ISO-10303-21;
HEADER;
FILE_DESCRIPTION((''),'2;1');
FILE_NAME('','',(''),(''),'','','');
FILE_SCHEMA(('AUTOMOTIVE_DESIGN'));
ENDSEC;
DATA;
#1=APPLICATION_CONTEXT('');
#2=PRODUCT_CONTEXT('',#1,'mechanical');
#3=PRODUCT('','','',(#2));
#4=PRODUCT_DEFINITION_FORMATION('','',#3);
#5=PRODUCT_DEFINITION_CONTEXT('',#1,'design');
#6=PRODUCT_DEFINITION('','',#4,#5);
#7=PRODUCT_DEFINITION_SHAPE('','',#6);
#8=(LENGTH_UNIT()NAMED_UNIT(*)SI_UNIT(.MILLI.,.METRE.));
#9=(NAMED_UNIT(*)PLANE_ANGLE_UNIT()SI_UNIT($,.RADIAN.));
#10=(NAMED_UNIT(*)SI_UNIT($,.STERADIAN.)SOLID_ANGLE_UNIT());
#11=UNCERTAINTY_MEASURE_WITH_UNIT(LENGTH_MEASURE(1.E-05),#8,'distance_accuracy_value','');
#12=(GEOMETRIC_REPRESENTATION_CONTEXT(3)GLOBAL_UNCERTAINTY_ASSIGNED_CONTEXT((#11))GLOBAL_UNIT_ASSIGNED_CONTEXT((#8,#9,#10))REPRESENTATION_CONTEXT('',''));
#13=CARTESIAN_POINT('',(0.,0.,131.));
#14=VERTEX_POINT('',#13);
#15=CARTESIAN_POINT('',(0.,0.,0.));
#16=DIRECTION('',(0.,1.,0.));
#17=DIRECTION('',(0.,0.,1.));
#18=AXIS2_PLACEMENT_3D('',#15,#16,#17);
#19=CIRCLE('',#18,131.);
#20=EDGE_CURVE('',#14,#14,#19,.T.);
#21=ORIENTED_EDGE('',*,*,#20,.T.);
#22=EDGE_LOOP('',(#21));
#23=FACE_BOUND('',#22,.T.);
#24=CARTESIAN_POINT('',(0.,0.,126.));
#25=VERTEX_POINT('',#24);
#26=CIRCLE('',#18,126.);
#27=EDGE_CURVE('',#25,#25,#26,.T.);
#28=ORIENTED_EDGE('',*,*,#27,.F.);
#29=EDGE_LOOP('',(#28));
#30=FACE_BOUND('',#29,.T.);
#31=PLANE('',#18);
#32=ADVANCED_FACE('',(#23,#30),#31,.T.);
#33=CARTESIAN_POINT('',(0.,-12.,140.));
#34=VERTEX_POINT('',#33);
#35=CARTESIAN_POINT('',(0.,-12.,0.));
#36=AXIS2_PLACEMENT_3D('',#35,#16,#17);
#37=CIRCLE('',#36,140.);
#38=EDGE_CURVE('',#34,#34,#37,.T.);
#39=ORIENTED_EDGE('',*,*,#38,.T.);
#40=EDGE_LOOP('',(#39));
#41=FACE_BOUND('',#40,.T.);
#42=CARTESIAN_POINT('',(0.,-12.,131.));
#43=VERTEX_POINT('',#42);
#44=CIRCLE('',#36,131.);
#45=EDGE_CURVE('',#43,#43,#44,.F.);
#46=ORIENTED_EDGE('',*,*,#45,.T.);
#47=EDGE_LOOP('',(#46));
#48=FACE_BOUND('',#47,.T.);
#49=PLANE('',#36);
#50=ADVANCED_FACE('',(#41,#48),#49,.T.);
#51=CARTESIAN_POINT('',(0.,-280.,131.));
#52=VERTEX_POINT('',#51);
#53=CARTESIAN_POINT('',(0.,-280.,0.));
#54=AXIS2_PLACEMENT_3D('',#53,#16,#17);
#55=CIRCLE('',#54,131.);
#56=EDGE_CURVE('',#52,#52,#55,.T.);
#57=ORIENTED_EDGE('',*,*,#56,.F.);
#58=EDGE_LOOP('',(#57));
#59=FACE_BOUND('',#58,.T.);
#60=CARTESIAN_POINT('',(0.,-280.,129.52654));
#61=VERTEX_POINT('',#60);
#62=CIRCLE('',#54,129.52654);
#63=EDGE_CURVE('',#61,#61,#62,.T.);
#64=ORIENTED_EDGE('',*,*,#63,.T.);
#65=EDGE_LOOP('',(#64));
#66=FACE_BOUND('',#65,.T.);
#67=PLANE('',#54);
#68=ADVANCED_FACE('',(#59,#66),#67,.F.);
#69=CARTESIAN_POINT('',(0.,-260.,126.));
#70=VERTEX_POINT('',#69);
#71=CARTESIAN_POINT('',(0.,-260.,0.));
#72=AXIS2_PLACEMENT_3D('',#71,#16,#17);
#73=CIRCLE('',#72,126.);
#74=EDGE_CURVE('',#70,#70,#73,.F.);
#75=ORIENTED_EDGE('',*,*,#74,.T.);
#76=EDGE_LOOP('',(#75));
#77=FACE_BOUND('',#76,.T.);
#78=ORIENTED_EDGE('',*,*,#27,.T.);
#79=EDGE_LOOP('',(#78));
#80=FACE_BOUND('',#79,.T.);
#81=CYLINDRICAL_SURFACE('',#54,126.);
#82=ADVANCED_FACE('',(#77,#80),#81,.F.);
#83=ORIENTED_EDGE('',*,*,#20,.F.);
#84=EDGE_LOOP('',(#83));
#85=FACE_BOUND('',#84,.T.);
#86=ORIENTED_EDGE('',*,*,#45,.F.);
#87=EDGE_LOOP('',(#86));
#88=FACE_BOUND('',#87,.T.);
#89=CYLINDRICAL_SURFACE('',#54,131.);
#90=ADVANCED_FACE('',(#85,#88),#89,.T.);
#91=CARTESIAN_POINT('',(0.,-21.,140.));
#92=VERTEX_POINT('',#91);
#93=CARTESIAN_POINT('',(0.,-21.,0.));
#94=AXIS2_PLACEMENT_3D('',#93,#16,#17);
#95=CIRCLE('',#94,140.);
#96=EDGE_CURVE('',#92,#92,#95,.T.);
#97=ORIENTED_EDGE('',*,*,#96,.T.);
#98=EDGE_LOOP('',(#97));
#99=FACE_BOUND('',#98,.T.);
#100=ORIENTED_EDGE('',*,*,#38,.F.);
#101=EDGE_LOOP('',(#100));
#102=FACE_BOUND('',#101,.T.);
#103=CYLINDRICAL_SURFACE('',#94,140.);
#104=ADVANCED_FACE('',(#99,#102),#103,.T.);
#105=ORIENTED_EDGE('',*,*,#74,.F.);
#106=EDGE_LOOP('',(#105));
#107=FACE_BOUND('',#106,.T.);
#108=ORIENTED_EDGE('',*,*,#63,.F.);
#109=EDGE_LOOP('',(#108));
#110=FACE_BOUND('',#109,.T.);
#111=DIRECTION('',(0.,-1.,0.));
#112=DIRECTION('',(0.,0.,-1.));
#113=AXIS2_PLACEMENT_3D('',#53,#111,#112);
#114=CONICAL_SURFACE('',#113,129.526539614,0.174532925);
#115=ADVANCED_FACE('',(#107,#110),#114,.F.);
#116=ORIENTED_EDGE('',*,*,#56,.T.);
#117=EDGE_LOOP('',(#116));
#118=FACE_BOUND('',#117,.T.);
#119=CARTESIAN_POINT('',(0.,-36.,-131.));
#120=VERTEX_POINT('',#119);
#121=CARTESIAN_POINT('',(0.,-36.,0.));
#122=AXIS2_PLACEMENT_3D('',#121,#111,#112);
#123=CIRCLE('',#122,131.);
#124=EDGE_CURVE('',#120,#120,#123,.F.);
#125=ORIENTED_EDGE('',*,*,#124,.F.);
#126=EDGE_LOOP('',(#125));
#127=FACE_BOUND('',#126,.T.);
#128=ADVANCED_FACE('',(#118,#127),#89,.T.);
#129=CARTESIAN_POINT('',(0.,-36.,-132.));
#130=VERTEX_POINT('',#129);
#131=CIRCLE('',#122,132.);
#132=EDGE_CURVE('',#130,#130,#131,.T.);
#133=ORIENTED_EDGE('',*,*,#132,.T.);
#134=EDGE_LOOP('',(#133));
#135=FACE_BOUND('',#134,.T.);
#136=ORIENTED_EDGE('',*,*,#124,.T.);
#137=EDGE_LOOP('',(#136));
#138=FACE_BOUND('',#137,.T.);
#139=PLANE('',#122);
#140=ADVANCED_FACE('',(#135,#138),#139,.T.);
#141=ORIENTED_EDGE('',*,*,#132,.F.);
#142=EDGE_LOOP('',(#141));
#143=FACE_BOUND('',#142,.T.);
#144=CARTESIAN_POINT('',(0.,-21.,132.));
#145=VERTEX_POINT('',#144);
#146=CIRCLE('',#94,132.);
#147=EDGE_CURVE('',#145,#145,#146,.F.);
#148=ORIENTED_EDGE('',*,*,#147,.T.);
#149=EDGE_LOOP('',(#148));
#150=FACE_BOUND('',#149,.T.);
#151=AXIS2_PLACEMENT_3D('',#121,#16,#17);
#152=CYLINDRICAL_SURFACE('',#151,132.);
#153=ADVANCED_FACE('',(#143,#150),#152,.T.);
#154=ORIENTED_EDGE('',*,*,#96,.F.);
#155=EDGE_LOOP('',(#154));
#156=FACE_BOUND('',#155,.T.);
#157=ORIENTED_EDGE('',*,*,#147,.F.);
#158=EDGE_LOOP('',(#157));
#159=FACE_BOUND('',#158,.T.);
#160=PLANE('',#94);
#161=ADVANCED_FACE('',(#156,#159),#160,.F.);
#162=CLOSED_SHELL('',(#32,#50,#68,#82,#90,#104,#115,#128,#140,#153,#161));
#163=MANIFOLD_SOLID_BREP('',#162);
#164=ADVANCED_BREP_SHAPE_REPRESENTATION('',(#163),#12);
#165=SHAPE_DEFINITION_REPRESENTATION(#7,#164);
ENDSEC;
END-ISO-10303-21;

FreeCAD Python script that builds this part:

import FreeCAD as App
import Part
import Sketcher

V = App.Vector
Q = App.Units.Quantity


def edges_at(feature, points):
    """Names of the edges that pass closest to the given points."""
    edges = feature.Shape.Edges
    near = lambda p: min(range(len(edges)), key=lambda i: edges[i].distToShape(Part.Vertex(*p))[0])
    return sorted({f"Edge{near(p) + 1}" for p in points})

doc = App.newDocument("Part")
body = doc.addObject("PartDesign::Body", "Body")

sketch1 = body.newObject("Sketcher::SketchObject", "Sketch")
sketch1.AttachmentSupport = (doc.getObject("XZ_Plane"), [""])
sketch1.MapMode = "FlatFace"
sketch1.addGeometry([
    Part.Circle(V(0, 0, 0), V(0, 0, 1), 131),
    Part.Circle(V(0, 0, 0), V(0, 0, 1), 126),
], False)
sketch1.addConstraint([
    Sketcher.Constraint("Coincident", 0, 3, -1, 1),
    Sketcher.Constraint("Coincident", 1, 3, -1, 1),
    Sketcher.Constraint("Diameter", 0, Q("262 mm")),
    Sketcher.Constraint("Diameter", 1, Q("252 mm")),
])
pad1 = body.newObject("PartDesign::Pad", "Pad")
pad1.Profile = sketch1
pad1.Length = 280

sketch2 = body.newObject("Sketcher::SketchObject", "Sketch001")
sketch2.AttachmentSupport = (doc.getObject("XZ_Plane"), [""])
sketch2.MapMode = "FlatFace"
sketch2.AttachmentOffset = App.Placement(V(0, 0, 12), App.Rotation())
sketch2.addGeometry([
    Part.Circle(V(0, 0, 0), V(0, 0, 1), 140),
    Part.Circle(V(0, 0, 0), V(0, 0, 1), 131),
], False)
sketch2.addConstraint([
    Sketcher.Constraint("Coincident", 0, 3, -1, 1),
    Sketcher.Constraint("Coincident", 1, 3, -1, 1),
    Sketcher.Constraint("Diameter", 0, Q("280 mm")),
    Sketcher.Constraint("Diameter", 1, Q("262 mm")),
])
pad2 = body.newObject("PartDesign::Pad", "Pad001")
pad2.Profile = sketch2
pad2.Length = 9
doc.recompute()

chamfer = body.newObject("PartDesign::Chamfer", "Chamfer")
chamfer.Base = (pad2, edges_at(pad2, [(-126, -280, 0)]))
chamfer.ChamferType = "Two distances"
chamfer.Size = 20
chamfer.Size2 = 3.52654

sketch3 = body.newObject("Sketcher::SketchObject", "Sketch002")
sketch3.AttachmentSupport = (doc.getObject("XZ_Plane"), [""])
sketch3.MapMode = "FlatFace"
sketch3.AttachmentOffset = App.Placement(V(0, 0, 21), App.Rotation())
sketch3.addGeometry([
    Part.Circle(V(0, 0, 0), V(0, 0, 1), 132),
    Part.Circle(V(0, 0, 0), V(0, 0, 1), 131),
], False)
sketch3.addConstraint([
    Sketcher.Constraint("Coincident", 0, 3, -1, 1),
    Sketcher.Constraint("Coincident", 1, 3, -1, 1),
    Sketcher.Constraint("Diameter", 0, Q("264 mm")),
    Sketcher.Constraint("Diameter", 1, Q("262 mm")),
])
pad3 = body.newObject("PartDesign::Pad", "Pad002")
pad3.Profile = sketch3
pad3.Length = 15

doc.recompute()
